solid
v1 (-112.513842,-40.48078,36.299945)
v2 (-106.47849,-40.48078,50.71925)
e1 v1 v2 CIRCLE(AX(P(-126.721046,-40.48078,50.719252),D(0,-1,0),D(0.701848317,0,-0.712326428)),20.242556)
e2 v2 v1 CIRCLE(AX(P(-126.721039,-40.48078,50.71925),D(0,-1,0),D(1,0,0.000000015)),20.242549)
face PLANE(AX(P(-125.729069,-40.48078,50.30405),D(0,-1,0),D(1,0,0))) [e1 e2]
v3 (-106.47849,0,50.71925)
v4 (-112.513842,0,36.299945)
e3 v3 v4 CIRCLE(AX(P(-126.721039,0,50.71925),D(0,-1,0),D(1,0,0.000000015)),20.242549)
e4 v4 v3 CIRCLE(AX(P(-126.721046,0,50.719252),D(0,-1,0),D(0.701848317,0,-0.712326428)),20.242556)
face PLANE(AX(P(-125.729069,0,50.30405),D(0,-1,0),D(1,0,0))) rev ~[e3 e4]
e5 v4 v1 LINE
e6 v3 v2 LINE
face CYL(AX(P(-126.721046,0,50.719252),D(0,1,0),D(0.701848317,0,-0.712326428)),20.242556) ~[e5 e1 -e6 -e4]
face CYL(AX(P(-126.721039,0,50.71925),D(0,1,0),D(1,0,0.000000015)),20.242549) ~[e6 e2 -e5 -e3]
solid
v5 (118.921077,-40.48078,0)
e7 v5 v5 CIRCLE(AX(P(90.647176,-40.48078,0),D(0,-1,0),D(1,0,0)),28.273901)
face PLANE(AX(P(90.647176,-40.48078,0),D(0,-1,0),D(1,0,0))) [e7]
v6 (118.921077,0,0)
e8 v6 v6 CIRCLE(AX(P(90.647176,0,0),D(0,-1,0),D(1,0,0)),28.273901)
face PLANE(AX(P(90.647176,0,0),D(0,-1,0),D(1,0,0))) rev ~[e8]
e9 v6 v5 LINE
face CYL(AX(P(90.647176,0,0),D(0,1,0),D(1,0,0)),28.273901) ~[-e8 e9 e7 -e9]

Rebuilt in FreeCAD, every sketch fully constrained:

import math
import FreeCAD as App
import Part
import Sketcher

doc = App.newDocument("Part")
body = doc.addObject("PartDesign::Body", "Body")
body.AllowCompound = True

sketch1 = body.newObject("Sketcher::SketchObject", "Sketch")
sketch1.AttachmentSupport = (doc.getObject("XZ_Plane"), [""])
sketch1.MapMode = "FlatFace"
sketch1.addGeometry(Part.ArcOfCircle(Part.Circle(App.Vector(-127, 51, 0), App.Vector(0, 0, 1), 20), math.radians(0), math.radians(315)), False)
sketch1.addGeometry(Part.ArcOfCircle(Part.Circle(App.Vector(-127, 51, 0), App.Vector(0, 0, 1), 20), math.radians(-45), math.radians(0)), False)
sketch1.addGeometry(Part.Circle(App.Vector(91, 0, 0), App.Vector(0, 0, 1), 28), False)
sketch1.addConstraint(Sketcher.Constraint("Tangent", 0, 1, 1, 2))
sketch1.addConstraint(Sketcher.Constraint("Coincident", 1, 1, 0, 2))
sketch1.addConstraint(Sketcher.Constraint("PointOnObject", 2, 3, -1))
sketch1.addConstraint(Sketcher.Constraint("Diameter", 2, 56.547802))
sketch1.addConstraint(Sketcher.Constraint("Radius", 0, 20.242549))
sketch1.addConstraint(Sketcher.Constraint("DistanceX", 0, 3, -1, 1, 126.721039))
sketch1.addConstraint(Sketcher.Constraint("DistanceY", -1, 1, 0, 3, 50.71925))
sketch1.addConstraint(Sketcher.Constraint("DistanceY", -1, 1, 0, 1, 50.71925))
sketch1.addConstraint(Sketcher.Constraint("DistanceX", 1, 3, 2, 3, 217.368222))
sketch1.addConstraint(Sketcher.Constraint("DistanceX", 1, 1, 2, 3, 203.161018))
pad1 = body.newObject("PartDesign::Pad", "Pad")
pad1.Profile = sketch1
pad1.Length = 40.48078

doc.recompute()
